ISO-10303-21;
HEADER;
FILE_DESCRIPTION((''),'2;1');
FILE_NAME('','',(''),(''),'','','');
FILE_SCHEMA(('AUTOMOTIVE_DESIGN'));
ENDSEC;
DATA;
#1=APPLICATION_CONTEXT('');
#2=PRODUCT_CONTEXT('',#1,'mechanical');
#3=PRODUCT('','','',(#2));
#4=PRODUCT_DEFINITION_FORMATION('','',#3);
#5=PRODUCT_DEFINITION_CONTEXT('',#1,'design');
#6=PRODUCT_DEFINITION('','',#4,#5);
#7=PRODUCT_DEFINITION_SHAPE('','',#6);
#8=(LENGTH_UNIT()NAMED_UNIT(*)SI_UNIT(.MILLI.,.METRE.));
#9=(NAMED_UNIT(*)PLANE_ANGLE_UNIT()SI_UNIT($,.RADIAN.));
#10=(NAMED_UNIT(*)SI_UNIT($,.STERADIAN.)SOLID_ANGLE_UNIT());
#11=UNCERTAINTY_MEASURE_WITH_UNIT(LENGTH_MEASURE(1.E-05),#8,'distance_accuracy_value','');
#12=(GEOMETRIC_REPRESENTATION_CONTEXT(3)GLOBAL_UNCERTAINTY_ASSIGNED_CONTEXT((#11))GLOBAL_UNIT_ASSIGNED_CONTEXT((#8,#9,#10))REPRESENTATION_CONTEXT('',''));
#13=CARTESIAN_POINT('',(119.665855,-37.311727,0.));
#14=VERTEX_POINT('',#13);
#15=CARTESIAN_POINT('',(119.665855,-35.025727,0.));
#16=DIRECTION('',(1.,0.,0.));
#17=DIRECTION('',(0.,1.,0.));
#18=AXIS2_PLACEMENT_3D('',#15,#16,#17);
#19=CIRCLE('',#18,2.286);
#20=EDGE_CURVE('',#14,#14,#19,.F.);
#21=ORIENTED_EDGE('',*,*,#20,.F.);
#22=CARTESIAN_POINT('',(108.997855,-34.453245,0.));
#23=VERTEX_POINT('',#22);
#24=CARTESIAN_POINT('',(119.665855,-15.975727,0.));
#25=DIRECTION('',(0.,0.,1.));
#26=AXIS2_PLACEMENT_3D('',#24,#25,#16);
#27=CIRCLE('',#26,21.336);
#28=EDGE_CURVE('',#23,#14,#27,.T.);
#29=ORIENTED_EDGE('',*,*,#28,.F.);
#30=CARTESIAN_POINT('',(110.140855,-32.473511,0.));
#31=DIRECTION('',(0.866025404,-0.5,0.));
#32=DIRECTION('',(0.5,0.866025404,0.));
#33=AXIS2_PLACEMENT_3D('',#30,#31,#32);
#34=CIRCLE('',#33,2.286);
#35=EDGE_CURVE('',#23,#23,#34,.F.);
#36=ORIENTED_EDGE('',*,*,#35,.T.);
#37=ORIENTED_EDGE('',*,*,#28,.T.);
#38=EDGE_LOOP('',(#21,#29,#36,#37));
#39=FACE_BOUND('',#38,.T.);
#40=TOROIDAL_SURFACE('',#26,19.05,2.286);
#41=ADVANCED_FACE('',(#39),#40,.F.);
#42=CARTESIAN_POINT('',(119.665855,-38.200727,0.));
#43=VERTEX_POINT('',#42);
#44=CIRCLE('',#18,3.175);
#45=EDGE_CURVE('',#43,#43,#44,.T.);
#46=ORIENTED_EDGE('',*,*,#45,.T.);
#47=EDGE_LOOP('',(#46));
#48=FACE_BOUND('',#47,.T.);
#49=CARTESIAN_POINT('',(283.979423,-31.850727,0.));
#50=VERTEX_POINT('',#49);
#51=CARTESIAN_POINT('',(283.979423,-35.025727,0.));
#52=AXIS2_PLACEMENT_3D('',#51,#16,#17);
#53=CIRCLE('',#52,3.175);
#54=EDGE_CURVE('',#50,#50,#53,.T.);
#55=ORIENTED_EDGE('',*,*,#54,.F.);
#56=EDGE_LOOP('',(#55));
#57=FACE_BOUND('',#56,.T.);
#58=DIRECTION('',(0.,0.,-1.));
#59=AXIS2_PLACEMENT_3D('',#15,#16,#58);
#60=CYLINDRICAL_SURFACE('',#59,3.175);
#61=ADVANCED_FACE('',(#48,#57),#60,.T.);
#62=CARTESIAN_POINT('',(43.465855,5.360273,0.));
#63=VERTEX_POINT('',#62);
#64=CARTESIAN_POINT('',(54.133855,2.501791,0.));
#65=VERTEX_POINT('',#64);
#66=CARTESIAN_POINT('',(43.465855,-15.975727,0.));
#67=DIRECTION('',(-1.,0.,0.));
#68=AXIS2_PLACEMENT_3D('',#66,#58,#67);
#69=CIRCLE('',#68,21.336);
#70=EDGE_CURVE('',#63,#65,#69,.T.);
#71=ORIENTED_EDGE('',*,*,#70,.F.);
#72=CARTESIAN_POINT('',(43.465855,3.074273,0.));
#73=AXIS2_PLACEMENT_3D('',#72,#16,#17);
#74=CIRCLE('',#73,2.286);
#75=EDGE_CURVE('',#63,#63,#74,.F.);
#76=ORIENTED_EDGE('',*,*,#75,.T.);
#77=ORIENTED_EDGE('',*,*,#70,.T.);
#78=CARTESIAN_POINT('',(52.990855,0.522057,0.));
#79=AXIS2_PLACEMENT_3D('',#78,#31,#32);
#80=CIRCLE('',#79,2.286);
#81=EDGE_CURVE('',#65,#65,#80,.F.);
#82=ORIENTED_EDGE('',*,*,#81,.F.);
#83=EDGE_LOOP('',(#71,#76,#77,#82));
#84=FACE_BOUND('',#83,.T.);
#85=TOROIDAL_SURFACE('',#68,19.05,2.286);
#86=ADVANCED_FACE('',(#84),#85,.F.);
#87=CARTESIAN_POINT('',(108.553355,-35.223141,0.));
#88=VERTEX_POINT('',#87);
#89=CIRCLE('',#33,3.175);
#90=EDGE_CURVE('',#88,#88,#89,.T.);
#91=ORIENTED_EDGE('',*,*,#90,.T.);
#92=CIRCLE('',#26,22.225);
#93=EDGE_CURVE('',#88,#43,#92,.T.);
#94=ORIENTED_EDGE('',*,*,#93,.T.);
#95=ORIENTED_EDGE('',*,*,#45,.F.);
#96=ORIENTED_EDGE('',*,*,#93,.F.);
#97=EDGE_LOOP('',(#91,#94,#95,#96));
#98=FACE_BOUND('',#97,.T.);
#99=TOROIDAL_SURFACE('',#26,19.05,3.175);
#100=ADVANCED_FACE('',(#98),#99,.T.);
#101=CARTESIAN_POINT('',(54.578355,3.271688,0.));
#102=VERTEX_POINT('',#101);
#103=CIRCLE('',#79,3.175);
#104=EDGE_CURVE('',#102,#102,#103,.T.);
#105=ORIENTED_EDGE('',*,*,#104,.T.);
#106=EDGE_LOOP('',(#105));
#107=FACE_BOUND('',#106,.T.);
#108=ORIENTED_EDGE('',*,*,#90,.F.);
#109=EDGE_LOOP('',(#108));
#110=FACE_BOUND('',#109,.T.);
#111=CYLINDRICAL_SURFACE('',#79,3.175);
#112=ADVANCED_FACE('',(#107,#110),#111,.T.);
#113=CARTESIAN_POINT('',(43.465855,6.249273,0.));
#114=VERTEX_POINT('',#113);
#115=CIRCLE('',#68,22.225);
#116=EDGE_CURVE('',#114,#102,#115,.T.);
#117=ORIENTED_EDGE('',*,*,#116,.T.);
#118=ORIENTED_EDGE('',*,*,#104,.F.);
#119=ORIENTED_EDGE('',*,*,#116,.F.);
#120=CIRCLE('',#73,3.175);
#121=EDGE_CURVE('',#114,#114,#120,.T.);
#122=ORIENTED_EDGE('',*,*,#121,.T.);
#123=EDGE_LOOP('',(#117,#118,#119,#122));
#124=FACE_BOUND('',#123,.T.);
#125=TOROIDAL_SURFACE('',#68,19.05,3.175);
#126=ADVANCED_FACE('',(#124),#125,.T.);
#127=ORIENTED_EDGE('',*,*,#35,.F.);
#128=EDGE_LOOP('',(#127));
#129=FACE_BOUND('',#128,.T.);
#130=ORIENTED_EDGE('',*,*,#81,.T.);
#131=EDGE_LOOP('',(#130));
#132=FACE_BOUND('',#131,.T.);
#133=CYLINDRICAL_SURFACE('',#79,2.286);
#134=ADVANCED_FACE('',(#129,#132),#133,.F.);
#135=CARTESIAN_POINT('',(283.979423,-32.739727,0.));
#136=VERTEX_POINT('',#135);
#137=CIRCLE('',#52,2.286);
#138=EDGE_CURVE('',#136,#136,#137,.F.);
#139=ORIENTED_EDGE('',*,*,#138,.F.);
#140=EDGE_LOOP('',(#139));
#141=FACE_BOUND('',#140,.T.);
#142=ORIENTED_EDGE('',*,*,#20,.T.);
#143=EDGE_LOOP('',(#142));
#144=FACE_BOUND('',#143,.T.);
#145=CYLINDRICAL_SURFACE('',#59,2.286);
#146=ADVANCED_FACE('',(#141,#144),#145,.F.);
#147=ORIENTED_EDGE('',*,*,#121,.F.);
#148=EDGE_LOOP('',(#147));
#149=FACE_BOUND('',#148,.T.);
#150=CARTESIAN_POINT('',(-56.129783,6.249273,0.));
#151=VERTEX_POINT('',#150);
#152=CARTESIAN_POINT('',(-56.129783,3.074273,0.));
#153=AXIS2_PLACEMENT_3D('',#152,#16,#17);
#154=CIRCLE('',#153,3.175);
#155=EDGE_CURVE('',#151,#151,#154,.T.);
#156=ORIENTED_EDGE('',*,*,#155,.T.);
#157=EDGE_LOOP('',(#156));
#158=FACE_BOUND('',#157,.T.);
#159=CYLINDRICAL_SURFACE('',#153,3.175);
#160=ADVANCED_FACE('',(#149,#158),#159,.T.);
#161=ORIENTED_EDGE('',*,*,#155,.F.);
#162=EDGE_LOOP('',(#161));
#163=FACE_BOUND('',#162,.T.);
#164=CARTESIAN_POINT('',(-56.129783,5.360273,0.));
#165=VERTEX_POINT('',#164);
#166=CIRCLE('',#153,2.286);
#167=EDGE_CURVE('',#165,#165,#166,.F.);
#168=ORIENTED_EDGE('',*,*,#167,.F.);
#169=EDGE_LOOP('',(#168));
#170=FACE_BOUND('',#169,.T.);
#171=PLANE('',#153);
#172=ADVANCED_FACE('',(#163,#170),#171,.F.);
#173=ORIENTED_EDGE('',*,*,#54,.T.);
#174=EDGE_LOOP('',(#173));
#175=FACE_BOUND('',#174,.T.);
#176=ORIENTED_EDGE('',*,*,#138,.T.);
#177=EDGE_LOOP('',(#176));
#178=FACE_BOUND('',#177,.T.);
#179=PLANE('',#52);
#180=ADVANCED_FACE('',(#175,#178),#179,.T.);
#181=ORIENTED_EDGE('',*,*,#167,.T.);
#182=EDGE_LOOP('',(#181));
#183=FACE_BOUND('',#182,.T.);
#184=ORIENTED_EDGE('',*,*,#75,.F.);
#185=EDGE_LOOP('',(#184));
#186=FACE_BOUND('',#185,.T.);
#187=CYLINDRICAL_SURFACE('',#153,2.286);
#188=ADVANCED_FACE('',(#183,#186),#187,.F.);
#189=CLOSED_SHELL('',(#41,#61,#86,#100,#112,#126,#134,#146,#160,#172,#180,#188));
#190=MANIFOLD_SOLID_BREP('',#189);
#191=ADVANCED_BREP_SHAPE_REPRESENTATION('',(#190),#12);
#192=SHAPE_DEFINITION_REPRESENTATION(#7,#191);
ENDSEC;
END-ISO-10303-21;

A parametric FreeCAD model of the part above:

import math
import FreeCAD as App
import Part
import Sketcher

V = App.Vector
Q = App.Units.Quantity

doc = App.newDocument("Part")
body = doc.addObject("PartDesign::Body", "Body")

sketch1 = body.newObject("Sketcher::SketchObject", "Sketch")
sketch1.AttachmentSupport = (doc.getObject("YZ_Plane"), [""])
sketch1.MapMode = "FlatFace"
sketch1.AttachmentOffset = App.Placement(V(0, 0, -56.129783), App.Rotation())
sketch1.addGeometry([
    Part.Circle(V(3.1, 0, 0), V(0, 0, 1), 3.2),
    Part.Circle(V(3.1, 0, 0), V(0, 0, 1), 2.3),
], False)
sketch1.addConstraint([
    Sketcher.Constraint("Coincident", 1, 3, 0, 3),
    Sketcher.Constraint("PointOnObject", 0, 3, -1),
    Sketcher.Constraint("Diameter", 0, Q("0.25 in")),
    Sketcher.Constraint("Diameter", 1, Q("0.18 in")),
    Sketcher.Constraint("DistanceX", -1, 1, 0, 3, Q("3.074273 mm")),
])

sketch2 = body.newObject("Sketcher::SketchObject", "Sketch001")
sketch2.AttachmentSupport = (doc.getObject("XY_Plane"), [""])
sketch2.MapMode = "FlatFace"
sketch2.addGeometry([
    Part.LineSegment(V(-56, 3, 0), V(43, 3, 0)),
    Part.ArcOfCircle(Part.Circle(V(43, -16, 0), V(0, 0, 1), 19), math.radians(60), math.radians(90)),
    Part.LineSegment(V(53, 1, 0), V(110, -32, 0)),
    Part.ArcOfCircle(Part.Circle(V(120, -16, 0), V(0, 0, 1), 19), math.radians(-120), math.radians(-90)),
    Part.LineSegment(V(120, -35, 0), V(284, -35, 0)),
], False)
sketch2.addConstraint([
    Sketcher.Constraint("Tangent", 0, 2, 1, 2),
    Sketcher.Constraint("Tangent", 1, 1, 2, 1),
    Sketcher.Constraint("Tangent", 2, 2, 3, 1),
    Sketcher.Constraint("Tangent", 3, 2, 4, 1),
    Sketcher.Constraint("Horizontal", 0),
    Sketcher.Constraint("Horizontal", 4),
    Sketcher.Constraint("Equal", 1, 3),
    Sketcher.Constraint("Horizontal", 1, 3, 3, 3),
    Sketcher.Constraint("Radius", 1, Q("0.75 in")),
    Sketcher.Constraint("Angle", 2, Q("-30 deg")),
    Sketcher.Constraint("DistanceX", 0, 1, 0, 2, Q("99.595638 mm")),
    Sketcher.Constraint("DistanceX", 4, 1, 4, 2, Q("164.313568 mm")),
    Sketcher.Constraint("DistanceY", 2, 2, -1, 1, Q("32.473511 mm")),
    Sketcher.Constraint("DistanceX", -1, 1, 1, 3, Q("43.465855 mm")),
])
doc.recompute()

additivepipe = body.newObject("PartDesign::AdditivePipe", "AdditivePipe")
additivepipe.Profile = sketch1
additivepipe.Spine = (sketch2, ["Edge1", "Edge2", "Edge3", "Edge4", "Edge5"])

doc.recompute()
